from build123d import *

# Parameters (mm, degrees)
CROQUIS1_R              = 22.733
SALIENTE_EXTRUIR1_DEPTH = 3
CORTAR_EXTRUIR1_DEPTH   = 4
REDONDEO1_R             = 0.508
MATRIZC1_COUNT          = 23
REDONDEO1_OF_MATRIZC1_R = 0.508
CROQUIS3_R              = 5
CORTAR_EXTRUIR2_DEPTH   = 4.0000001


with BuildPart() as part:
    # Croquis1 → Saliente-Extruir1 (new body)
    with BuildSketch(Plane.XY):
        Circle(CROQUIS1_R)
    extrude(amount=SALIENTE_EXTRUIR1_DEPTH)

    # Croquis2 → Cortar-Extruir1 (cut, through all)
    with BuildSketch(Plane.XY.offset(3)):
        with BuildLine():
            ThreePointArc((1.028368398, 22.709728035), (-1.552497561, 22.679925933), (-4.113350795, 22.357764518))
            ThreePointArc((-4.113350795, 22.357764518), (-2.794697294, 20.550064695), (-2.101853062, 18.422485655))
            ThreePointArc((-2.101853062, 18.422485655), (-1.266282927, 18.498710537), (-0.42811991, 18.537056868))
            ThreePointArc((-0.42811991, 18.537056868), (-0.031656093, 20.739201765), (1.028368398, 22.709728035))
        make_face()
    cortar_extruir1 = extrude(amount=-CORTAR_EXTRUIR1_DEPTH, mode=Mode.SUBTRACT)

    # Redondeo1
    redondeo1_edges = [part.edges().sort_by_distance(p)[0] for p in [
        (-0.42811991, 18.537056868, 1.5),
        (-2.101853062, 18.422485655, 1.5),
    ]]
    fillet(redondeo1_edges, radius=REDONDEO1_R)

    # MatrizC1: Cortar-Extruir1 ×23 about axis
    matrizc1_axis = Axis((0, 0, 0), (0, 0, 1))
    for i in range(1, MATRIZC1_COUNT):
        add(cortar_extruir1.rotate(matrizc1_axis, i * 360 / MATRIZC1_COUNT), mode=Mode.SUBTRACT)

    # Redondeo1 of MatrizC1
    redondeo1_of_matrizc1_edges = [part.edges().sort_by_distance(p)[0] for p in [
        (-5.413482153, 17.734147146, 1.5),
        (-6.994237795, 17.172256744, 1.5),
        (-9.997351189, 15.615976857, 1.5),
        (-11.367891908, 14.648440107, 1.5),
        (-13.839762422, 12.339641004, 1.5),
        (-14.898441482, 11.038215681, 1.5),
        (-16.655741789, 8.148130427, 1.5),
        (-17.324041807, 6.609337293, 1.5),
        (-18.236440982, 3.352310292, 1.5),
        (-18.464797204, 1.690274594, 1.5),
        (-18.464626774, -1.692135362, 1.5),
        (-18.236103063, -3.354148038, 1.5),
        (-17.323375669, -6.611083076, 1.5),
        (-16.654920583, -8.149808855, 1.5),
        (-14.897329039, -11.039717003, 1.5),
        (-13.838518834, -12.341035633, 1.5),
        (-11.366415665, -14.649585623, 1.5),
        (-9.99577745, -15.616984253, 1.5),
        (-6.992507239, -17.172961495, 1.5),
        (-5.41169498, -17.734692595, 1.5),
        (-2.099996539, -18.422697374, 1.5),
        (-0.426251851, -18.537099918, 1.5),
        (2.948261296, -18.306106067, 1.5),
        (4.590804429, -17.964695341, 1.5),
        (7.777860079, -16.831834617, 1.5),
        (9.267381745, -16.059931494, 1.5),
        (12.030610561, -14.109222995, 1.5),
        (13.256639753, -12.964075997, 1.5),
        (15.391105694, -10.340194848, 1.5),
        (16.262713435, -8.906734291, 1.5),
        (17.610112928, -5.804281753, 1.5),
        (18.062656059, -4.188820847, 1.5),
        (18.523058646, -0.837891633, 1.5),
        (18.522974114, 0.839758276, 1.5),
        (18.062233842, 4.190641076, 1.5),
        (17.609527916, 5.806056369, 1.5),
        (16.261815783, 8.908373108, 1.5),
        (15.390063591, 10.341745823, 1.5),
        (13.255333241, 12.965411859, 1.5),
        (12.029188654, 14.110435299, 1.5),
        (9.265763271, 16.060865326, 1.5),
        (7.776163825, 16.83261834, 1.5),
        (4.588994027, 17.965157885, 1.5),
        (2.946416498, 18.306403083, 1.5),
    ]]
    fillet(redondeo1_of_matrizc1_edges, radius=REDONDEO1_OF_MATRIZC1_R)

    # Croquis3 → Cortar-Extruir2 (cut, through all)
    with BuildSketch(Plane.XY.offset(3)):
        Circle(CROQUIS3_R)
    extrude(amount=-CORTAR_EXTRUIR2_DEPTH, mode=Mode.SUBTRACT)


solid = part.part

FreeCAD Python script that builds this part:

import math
import FreeCAD as App
import Part
import Sketcher
Q = App.Units.Quantity


def edges_at(feature, points):
    """Names of the edges that pass closest to the given points."""
    edges = feature.Shape.Edges
    near = lambda p: min(range(len(edges)), key=lambda i: edges[i].distToShape(Part.Vertex(*p))[0])
    return sorted({f"Edge{near(p) + 1}" for p in points})

doc = App.newDocument("Part")
body = doc.addObject("PartDesign::Body", "Body")

# Sketch on XY plane
sketch1 = body.newObject("Sketcher::SketchObject", "Sketch")
sketch1.AttachmentSupport = (doc.getObject("XY_Plane"), [""])
sketch1.MapMode = "FlatFace"
sketch1.addGeometry(Part.Circle(App.Vector(0, 0, 0), App.Vector(0, 0, 1), 23), False)
sketch1.addConstraint(Sketcher.Constraint("Coincident", 0, 3, -1, 1))
sketch1.addConstraint(Sketcher.Constraint("Diameter", 0, Q("45.466 mm")))
pad1 = body.newObject("PartDesign::Pad", "Pad")
pad1.Profile = sketch1
pad1.Length = 3

# Sketch on XY plane
sketch2 = body.newObject("Sketcher::SketchObject", "Sketch001")
sketch2.AttachmentSupport = (doc.getObject("XY_Plane"), [""])
sketch2.MapMode = "FlatFace"
sketch2.AttachmentOffset = App.Placement(App.Vector(0, 0, 3), App.Rotation())
sketch2.addGeometry(Part.ArcOfCircle(Part.Circle(App.Vector(0, 0, 0), App.Vector(0, 0, 1), 22.7), math.radians(87.41), math.radians(100.42)), False)
sketch2.addGeometry(Part.ArcOfCircle(Part.Circle(App.Vector(-9.1, 17.3, 0), App.Vector(0, 0, 1), 7.1), math.radians(9), math.radians(45)), False)
sketch2.addGeometry(Part.ArcOfCircle(Part.Circle(App.Vector(0, 0, 0), App.Vector(0, 0, 1), 18.5), math.radians(91.32), math.radians(96.51)), False)
sketch2.addGeometry(Part.ArcOfCircle(Part.Circle(App.Vector(6.7, 18.4, 0), App.Vector(0, 0, 1), 7.1), math.radians(143), math.radians(179)), False)
sketch2.addConstraint(Sketcher.Constraint("Coincident", 0, 2, 1, 2))
sketch2.addConstraint(Sketcher.Constraint("Coincident", 1, 1, 2, 2))
sketch2.addConstraint(Sketcher.Constraint("Coincident", 2, 1, 3, 2))
sketch2.addConstraint(Sketcher.Constraint("Coincident", 3, 1, 0, 1))
sketch2.addConstraint(Sketcher.Constraint("Coincident", 0, 3, -1, 1))
sketch2.addConstraint(Sketcher.Constraint("Coincident", 2, 3, -1, 1))
sketch2.addConstraint(Sketcher.Constraint("Equal", 1, 3))
sketch2.addConstraint(Sketcher.Constraint("Radius", 0, Q("22.733 mm")))
sketch2.addConstraint(Sketcher.Constraint("Radius", 2, Q("18.542 mm")))
sketch2.addConstraint(Sketcher.Constraint("Radius", 1, Q("7.123596 mm")))
sketch2.addConstraint(Sketcher.Constraint("DistanceY", 3, 3, 1, 1, Q("0.030899 mm")))
sketch2.addConstraint(Sketcher.Constraint("DistanceX", -1, 1, 3, 3, Q("6.69399 mm")))
sketch2.addConstraint(Sketcher.Constraint("DistanceX", 0, 2, -1, 1, Q("4.113351 mm")))
sketch2.addConstraint(Sketcher.Constraint("DistanceX", -1, 1, 3, 1, Q("1.028368 mm")))
pocket1 = body.newObject("PartDesign::Pocket", "Pocket")
pocket1.Profile = sketch2
pocket1.Type = "ThroughAll"
doc.recompute()

fillet = body.newObject("PartDesign::Fillet", "Fillet")
fillet.Base = (pocket1, edges_at(pocket1, [(-0.428, 18.537, 1.5), (-2.102, 18.422, 1.5)]))
fillet.Radius = 0.508
doc.recompute()

polarpattern = body.newObject("PartDesign::PolarPattern", "PolarPattern")
polarpattern.Originals = [pocket1]
polarpattern.Axis = (doc.getObject("Z_Axis"), [""])
polarpattern.Angle = 360
polarpattern.Occurrences = 23
body.Tip = polarpattern
doc.recompute()

fillet2 = body.newObject("PartDesign::Fillet", "Fillet001")
fillet2.Base = (polarpattern, edges_at(polarpattern, [
    (-5.413, 17.734, 1.5),
    (-6.994, 17.172, 1.5),
    (-9.997, 15.616, 1.5),
    (-11.368, 14.648, 1.5),
    (-13.84, 12.34, 1.5),
    (-14.898, 11.038, 1.5),
    (-16.656, 8.148, 1.5),
    (-17.324, 6.609, 1.5),
    (-18.236, 3.352, 1.5),
    (-18.465, 1.69, 1.5),
    (-18.465, -1.692, 1.5),
    (-18.236, -3.354, 1.5),
    (-17.323, -6.611, 1.5),
    (-16.655, -8.15, 1.5),
    (-14.897, -11.04, 1.5),
    (-13.839, -12.341, 1.5),
    (-11.366, -14.65, 1.5),
    (-9.996, -15.617, 1.5),
    (-6.993, -17.173, 1.5),
    (-5.412, -17.735, 1.5),
    (-2.1, -18.423, 1.5),
    (-0.426, -18.537, 1.5),
    (2.948, -18.306, 1.5),
    (4.591, -17.965, 1.5),
    (7.778, -16.832, 1.5),
    (9.267, -16.06, 1.5),
    (12.031, -14.109, 1.5),
    (13.257, -12.964, 1.5),
    (15.391, -10.34, 1.5),
    (16.263, -8.907, 1.5),
    (17.61, -5.804, 1.5),
    (18.063, -4.189, 1.5),
    (18.523, -0.838, 1.5),
    (18.523, 0.84, 1.5),
    (18.062, 4.191, 1.5),
    (17.61, 5.806, 1.5),
    (16.262, 8.908, 1.5),
    (15.39, 10.342, 1.5),
    (13.255, 12.965, 1.5),
    (12.029, 14.11, 1.5),
    (9.266, 16.061, 1.5),
    (7.776, 16.833, 1.5),
    (4.589, 17.965, 1.5),
    (2.946, 18.306, 1.5),
]))
fillet2.Radius = 0.508

# Sketch on XY plane
sketch3 = body.newObject("Sketcher::SketchObject", "Sketch002")
sketch3.AttachmentSupport = (doc.getObject("XY_Plane"), [""])
sketch3.MapMode = "FlatFace"
sketch3.AttachmentOffset = App.Placement(App.Vector(0, 0, 3), App.Rotation())
sketch3.addGeometry(Part.Circle(App.Vector(0, 0, 0), App.Vector(0, 0, 1), 5), False)
sketch3.addConstraint(Sketcher.Constraint("Coincident", 0, 3, -1, 1))
sketch3.addConstraint(Sketcher.Constraint("Diameter", 0, Q("10 mm")))
pocket2 = body.newObject("PartDesign::Pocket", "Pocket001")
pocket2.Profile = sketch3
pocket2.Type = "ThroughAll"

doc.recompute()
